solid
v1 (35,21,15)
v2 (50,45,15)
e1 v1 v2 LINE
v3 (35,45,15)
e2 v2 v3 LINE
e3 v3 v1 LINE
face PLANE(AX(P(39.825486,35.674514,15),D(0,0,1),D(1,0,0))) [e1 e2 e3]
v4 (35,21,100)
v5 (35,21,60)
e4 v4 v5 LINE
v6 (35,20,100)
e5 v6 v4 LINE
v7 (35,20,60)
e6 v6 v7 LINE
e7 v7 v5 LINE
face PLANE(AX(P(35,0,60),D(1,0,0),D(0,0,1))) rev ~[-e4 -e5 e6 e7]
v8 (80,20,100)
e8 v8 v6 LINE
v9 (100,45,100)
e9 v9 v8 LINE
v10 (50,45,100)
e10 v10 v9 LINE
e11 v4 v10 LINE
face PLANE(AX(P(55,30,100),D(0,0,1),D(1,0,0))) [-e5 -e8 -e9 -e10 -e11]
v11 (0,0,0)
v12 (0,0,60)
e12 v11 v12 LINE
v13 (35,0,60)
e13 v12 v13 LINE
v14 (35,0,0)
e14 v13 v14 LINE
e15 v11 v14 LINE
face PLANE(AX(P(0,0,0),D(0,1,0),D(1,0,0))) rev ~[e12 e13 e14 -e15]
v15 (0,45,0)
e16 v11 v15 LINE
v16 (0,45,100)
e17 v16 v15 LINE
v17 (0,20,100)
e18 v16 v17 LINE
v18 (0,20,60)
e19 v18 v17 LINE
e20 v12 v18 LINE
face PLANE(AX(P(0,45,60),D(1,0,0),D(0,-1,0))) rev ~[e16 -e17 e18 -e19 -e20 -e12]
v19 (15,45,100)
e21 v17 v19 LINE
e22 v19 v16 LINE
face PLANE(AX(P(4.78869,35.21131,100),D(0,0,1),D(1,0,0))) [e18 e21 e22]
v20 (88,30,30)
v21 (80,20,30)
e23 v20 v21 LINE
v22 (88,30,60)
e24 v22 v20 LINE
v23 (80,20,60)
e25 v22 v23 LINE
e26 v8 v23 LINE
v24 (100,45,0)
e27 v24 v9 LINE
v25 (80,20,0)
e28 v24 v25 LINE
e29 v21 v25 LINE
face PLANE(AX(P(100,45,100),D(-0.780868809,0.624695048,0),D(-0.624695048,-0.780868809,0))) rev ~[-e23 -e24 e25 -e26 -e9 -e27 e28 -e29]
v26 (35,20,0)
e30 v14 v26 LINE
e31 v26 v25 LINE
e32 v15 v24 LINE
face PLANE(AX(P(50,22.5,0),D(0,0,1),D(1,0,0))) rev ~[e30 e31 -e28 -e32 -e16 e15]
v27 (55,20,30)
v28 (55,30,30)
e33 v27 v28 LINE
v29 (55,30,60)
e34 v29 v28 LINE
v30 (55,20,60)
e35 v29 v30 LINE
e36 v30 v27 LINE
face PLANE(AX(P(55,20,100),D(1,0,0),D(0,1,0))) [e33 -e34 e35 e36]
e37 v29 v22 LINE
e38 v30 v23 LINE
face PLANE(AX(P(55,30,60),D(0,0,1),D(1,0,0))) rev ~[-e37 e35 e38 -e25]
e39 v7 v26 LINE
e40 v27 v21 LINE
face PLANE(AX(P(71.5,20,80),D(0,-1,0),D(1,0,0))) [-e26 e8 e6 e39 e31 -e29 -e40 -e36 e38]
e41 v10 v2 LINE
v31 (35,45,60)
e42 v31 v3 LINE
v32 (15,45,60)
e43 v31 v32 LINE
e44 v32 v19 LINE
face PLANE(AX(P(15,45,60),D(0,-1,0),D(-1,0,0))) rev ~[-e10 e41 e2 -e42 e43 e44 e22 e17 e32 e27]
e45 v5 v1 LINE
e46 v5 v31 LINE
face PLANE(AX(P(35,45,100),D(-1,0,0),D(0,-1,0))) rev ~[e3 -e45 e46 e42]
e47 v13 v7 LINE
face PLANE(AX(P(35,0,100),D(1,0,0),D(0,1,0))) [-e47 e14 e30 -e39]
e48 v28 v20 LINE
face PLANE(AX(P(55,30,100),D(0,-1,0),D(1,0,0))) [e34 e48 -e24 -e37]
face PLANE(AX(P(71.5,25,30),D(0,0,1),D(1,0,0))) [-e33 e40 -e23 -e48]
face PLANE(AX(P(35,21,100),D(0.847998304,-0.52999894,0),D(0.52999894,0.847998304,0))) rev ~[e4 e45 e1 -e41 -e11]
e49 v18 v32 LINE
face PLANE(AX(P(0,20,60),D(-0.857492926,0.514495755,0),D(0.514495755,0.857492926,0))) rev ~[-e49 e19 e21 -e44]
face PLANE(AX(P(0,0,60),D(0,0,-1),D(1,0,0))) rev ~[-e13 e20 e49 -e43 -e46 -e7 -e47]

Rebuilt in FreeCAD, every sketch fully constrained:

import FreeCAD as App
import Part
import Sketcher
from FreeCAD import Vector


def add_polygon(sketch, points):
    """Adds a closed chain of lines whose ends are joined by coincident constraints."""
    first, n = sketch.GeometryCount, len(points)
    for a, b in zip(points, points[1:] + points[:1]):
        sketch.addGeometry(Part.LineSegment(App.Vector(*a, 0), App.Vector(*b, 0)), False)
    for i in range(n):
        sketch.addConstraint(Sketcher.Constraint("Coincident", first + i, 2, first + (i + 1) % n, 1))

doc = App.newDocument("Part")
body = doc.addObject("PartDesign::Body", "Body")

sketch1 = body.newObject("Sketcher::SketchObject", "Sketch")
sketch1.AttachmentSupport = (doc.getObject("XY_Plane"), [""])
sketch1.MapMode = "FlatFace"
add_polygon(sketch1, [(0, 45), (0, 0), (100, 0), (100, 45)])
sketch1.addConstraint([
    Sketcher.Constraint("Vertical", 0),
    Sketcher.Constraint("Horizontal", 1),
    Sketcher.Constraint("Vertical", 2),
    Sketcher.Constraint("Horizontal", 3),
    Sketcher.Constraint("Coincident", 0, 2, -1, 1),
    Sketcher.Constraint("DistanceX", 1, 1, 1, 2, 100.0),
    Sketcher.Constraint("DistanceY", 0, 2, 0, 1, 45.0),
])
pad1 = body.newObject("PartDesign::Pad", "Pad")
pad1.Profile = sketch1
pad1.Length = 100

sketch2 = body.newObject("Sketcher::SketchObject", "Sketch001")
sketch2.AttachmentSupport = (doc.getObject("XY_Plane"), [""])
sketch2.MapMode = "FlatFace"
sketch2.AttachmentOffset = App.Placement(Vector(0, 0, 100), App.Rotation())
add_polygon(sketch2, [(35, 20), (35, 0), (100, 0), (100, 20)])
sketch2.addConstraint([
    Sketcher.Constraint("Vertical", 0),
    Sketcher.Constraint("Horizontal", 1),
    Sketcher.Constraint("Vertical", 2),
    Sketcher.Constraint("Horizontal", 3),
    Sketcher.Constraint("PointOnObject", 0, 2, -1),
    Sketcher.Constraint("DistanceX", 1, 1, 1, 2, 65.0),
    Sketcher.Constraint("DistanceY", 0, 2, 0, 1, 20.0),
    Sketcher.Constraint("DistanceX", -1, 1, 0, 2, 35.0),
])
pocket1 = body.newObject("PartDesign::Pocket", "Pocket")
pocket1.Profile = sketch2
pocket1.Type = "ThroughAll"

sketch3 = body.newObject("Sketcher::SketchObject", "Sketch002")
sketch3.AttachmentSupport = (doc.getObject("XZ_Plane"), [""])
sketch3.MapMode = "FlatFace"
add_polygon(sketch3, [(0, 100), (0, 60), (35, 60), (35, 100)])
sketch3.addConstraint([
    Sketcher.Constraint("Vertical", 0),
    Sketcher.Constraint("Horizontal", 1),
    Sketcher.Constraint("Vertical", 2),
    Sketcher.Constraint("Horizontal", 3),
    Sketcher.Constraint("PointOnObject", 0, 2, -2),
    Sketcher.Constraint("DistanceX", 1, 1, 1, 2, 35.0),
    Sketcher.Constraint("DistanceY", 0, 2, 0, 1, 40.0),
    Sketcher.Constraint("DistanceY", -1, 1, 0, 2, 60.0),
])
pocket2 = body.newObject("PartDesign::Pocket", "Pocket001")
pocket2.Profile = sketch3
pocket2.Type = "ThroughAll"

sketch4 = body.newObject("Sketcher::SketchObject", "Sketch003")
sketch4.AttachmentSupport = (doc.getObject("XY_Plane"), [""])
sketch4.MapMode = "FlatFace"
sketch4.AttachmentOffset = App.Placement(Vector(0, 0, 60), App.Rotation())
add_polygon(sketch4, [(0, 20), (15, 45), (0, 45)])
sketch4.addConstraint([
    Sketcher.Constraint("Horizontal", 1),
    Sketcher.Constraint("Vertical", 2),
    Sketcher.Constraint("PointOnObject", 1, 2, -2),
    Sketcher.Constraint("DistanceX", 1, 2, 1, 1, 15.0),
    Sketcher.Constraint("DistanceY", 2, 2, 2, 1, 25.0),
    Sketcher.Constraint("DistanceY", -1, 1, 0, 2, 45.0),
])
pad2 = body.newObject("PartDesign::Pad", "Pad001")
pad2.Profile = sketch4
pad2.Length = 40

sketch5 = body.newObject("Sketcher::SketchObject", "Sketch004")
sketch5.AttachmentSupport = (doc.getObject("XY_Plane"), [""])
sketch5.MapMode = "FlatFace"
sketch5.AttachmentOffset = App.Placement(Vector(0, 0, 100), App.Rotation())
add_polygon(sketch5, [(35, 21), (50, 45), (35, 45)])
sketch5.addConstraint([
    Sketcher.Constraint("Horizontal", 1),
    Sketcher.Constraint("Vertical", 2),
    Sketcher.Constraint("DistanceX", 1, 2, 1, 1, 15.0),
    Sketcher.Constraint("DistanceY", 2, 2, 2, 1, 24.0),
    Sketcher.Constraint("DistanceX", -1, 1, 0, 2, 50.0),
    Sketcher.Constraint("DistanceY", -1, 1, 0, 2, 45.0),
])
pocket3 = body.newObject("PartDesign::Pocket", "Pocket002")
pocket3.Profile = sketch5
pocket3.Length = 85

sketch6 = body.newObject("Sketcher::SketchObject", "Sketch005")
sketch6.AttachmentSupport = (doc.getObject("XY_Plane"), [""])
sketch6.MapMode = "FlatFace"
sketch6.AttachmentOffset = App.Placement(Vector(0, 0, 100), App.Rotation())
add_polygon(sketch6, [(55, 30), (55, 20), (88, 20), (88, 30)])
sketch6.addConstraint([
    Sketcher.Constraint("Vertical", 0),
    Sketcher.Constraint("Horizontal", 1),
    Sketcher.Constraint("Vertical", 2),
    Sketcher.Constraint("Horizontal", 3),
    Sketcher.Constraint("DistanceX", 1, 1, 1, 2, 33.0),
    Sketcher.Constraint("DistanceY", 0, 2, 0, 1, 10.0),
    Sketcher.Constraint("DistanceX", -1, 1, 0, 2, 55.0),
    Sketcher.Constraint("DistanceY", -1, 1, 0, 2, 20.0),
])
pocket4 = body.newObject("PartDesign::Pocket", "Pocket003")
pocket4.Profile = sketch6
pocket4.Length = 70

sketch7 = body.newObject("Sketcher::SketchObject", "Sketch006")
sketch7.AttachmentSupport = (doc.getObject("XZ_Plane"), [""])
sketch7.MapMode = "FlatFace"
sketch7.AttachmentOffset = App.Placement(Vector(0, 0, -30), App.Rotation())
add_polygon(sketch7, [(55, 100), (55, 60), (88, 60), (88, 100)])
sketch7.addConstraint([
    Sketcher.Constraint("Vertical", 0),
    Sketcher.Constraint("Horizontal", 1),
    Sketcher.Constraint("Vertical", 2),
    Sketcher.Constraint("Horizontal", 3),
    Sketcher.Constraint("DistanceX", 1, 1, 1, 2, 33.0),
    Sketcher.Constraint("DistanceY", 0, 2, 0, 1, 40.0),
    Sketcher.Constraint("DistanceX", -1, 1, 0, 2, 55.0),
    Sketcher.Constraint("DistanceY", -1, 1, 0, 2, 60.0),
])
pad3 = body.newObject("PartDesign::Pad", "Pad002")
pad3.Profile = sketch7
pad3.Length = 10

sketch8 = body.newObject("Sketcher::SketchObject", "Sketch007")
sketch8.AttachmentSupport = (doc.getObject("XY_Plane"), [""])
sketch8.MapMode = "FlatFace"
sketch8.AttachmentOffset = App.Placement(Vector(0, 0, 100), App.Rotation())
add_polygon(sketch8, [(100, 20), (100, 45), (80, 20)])
sketch8.addConstraint([
    Sketcher.Constraint("Vertical", 0),
    Sketcher.Constraint("Horizontal", 2),
    Sketcher.Constraint("DistanceX", 2, 1, 2, 2, 20.0),
    Sketcher.Constraint("DistanceY", 0, 1, 0, 2, 25.0),
    Sketcher.Constraint("DistanceX", -1, 1, 0, 2, 100.0),
    Sketcher.Constraint("DistanceY", -1, 1, 0, 2, 45.0),
])
pocket5 = body.newObject("PartDesign::Pocket", "Pocket004")
pocket5.Profile = sketch8
pocket5.Type = "ThroughAll"

doc.recompute()
